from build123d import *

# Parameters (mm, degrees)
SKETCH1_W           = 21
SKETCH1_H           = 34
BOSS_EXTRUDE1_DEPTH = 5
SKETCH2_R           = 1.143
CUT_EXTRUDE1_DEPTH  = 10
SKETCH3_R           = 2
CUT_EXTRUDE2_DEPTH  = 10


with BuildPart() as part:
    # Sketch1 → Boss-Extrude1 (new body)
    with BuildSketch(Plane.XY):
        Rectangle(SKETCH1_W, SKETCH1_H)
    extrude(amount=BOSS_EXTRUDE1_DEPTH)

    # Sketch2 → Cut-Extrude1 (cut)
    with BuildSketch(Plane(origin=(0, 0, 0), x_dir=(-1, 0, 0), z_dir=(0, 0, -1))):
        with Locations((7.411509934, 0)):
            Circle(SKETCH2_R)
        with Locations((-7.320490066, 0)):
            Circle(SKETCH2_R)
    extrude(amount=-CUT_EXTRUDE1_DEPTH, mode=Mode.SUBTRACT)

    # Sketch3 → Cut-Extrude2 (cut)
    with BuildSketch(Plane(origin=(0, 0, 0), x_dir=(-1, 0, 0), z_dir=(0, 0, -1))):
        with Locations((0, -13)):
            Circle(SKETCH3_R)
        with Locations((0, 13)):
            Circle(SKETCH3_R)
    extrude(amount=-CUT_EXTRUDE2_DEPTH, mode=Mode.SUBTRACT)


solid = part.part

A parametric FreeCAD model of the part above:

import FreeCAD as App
import Part
import Sketcher

V = App.Vector
Q = App.Units.Quantity

doc = App.newDocument("Part")
params = doc.addObject("Spreadsheet::Sheet", "Params")
for row, (alias, value) in enumerate([
    ("sketch1_width", "21 mm"),
    ("sketch1_height", "34 mm"),
    ("pad1_length", "5 mm"),
    ("pocket1_length", "10 mm"),
    ("sketch3_diameter", "4 mm"),
    ("pocket2_length", "10 mm"),
], start=1):
    params.set(f"A{row}", alias)
    params.set(f"B{row}", "=" + value)
    params.setAlias(f"B{row}", alias)

body = doc.addObject("PartDesign::Body", "Body")

sketch1 = body.newObject("Sketcher::SketchObject", "Sketch")
sketch1.AttachmentSupport = (doc.getObject("XY_Plane"), [""])
sketch1.MapMode = "FlatFace"
sketch1.addGeometry([
    Part.LineSegment(V(-10, 17, 0), V(-10, -17, 0)),
    Part.LineSegment(V(-10, -17, 0), V(10, -17, 0)),
    Part.LineSegment(V(10, -17, 0), V(10, 17, 0)),
    Part.LineSegment(V(10, 17, 0), V(-10, 17, 0)),
], False)
sketch1.addConstraint([
    Sketcher.Constraint("Coincident", 0, 2, 1, 1),
    Sketcher.Constraint("Coincident", 1, 2, 2, 1),
    Sketcher.Constraint("Coincident", 2, 2, 3, 1),
    Sketcher.Constraint("Coincident", 3, 2, 0, 1),
    Sketcher.Constraint("Vertical", 0),
    Sketcher.Constraint("Horizontal", 1),
    Sketcher.Constraint("Vertical", 2),
    Sketcher.Constraint("Horizontal", 3),
    Sketcher.Constraint("Symmetric", 0, 2, 2, 2, -1, 1),
    Sketcher.Constraint("DistanceX", 1, 1, 1, 2, Q("21 mm")),
    Sketcher.Constraint("DistanceY", 0, 2, 0, 1, Q("34 mm")),
])
sketch1.setExpression("Constraints[9]", "Params.sketch1_width")
sketch1.setExpression("Constraints[10]", "Params.sketch1_height")
pad1 = body.newObject("PartDesign::Pad", "Pad")
pad1.Profile = sketch1
pad1.setExpression("Length", "Params.pad1_length")

sketch2 = body.newObject("Sketcher::SketchObject", "Sketch001")
sketch2.AttachmentSupport = (doc.getObject("XY_Plane"), [""])
sketch2.MapMode = "FlatFace"
sketch2.addGeometry([
    Part.Circle(V(-7.4, 0, 0), V(0, 0, 1), 1.1),
    Part.Circle(V(7.3, 0, 0), V(0, 0, 1), 1.1),
], False)
sketch2.addConstraint([
    Sketcher.Constraint("Equal", 0, 1),
    Sketcher.Constraint("PointOnObject", 0, 3, -1),
    Sketcher.Constraint("PointOnObject", 1, 3, -1),
    Sketcher.Constraint("Diameter", 0, Q("2.286 mm")),
    Sketcher.Constraint("DistanceX", 0, 3, 1, 3, Q("14.732 mm")),
    Sketcher.Constraint("DistanceX", 0, 3, -1, 1, Q("7.41151 mm")),
])
pocket1 = body.newObject("PartDesign::Pocket", "Pocket")
pocket1.Profile = sketch2
pocket1.setExpression("Length", "Params.pocket1_length")
pocket1.Reversed = True

sketch3 = body.newObject("Sketcher::SketchObject", "Sketch002")
sketch3.AttachmentSupport = (doc.getObject("XY_Plane"), [""])
sketch3.MapMode = "FlatFace"
sketch3.addGeometry([
    Part.Circle(V(0, -13, 0), V(0, 0, 1), 2),
    Part.Circle(V(0, 13, 0), V(0, 0, 1), 2),
], False)
sketch3.addConstraint([
    Sketcher.Constraint("Equal", 0, 1),
    Sketcher.Constraint("Symmetric", 0, 3, 1, 3, -1, 1),
    Sketcher.Constraint("PointOnObject", 0, 3, -2),
    Sketcher.Constraint("Diameter", 0, Q("4 mm")),
    Sketcher.Constraint("DistanceY", 0, 3, -1, 1, Q("13 mm")),
])
sketch3.setExpression("Constraints[3]", "Params.sketch3_diameter")
pocket2 = body.newObject("PartDesign::Pocket", "Pocket001")
pocket2.Profile = sketch3
pocket2.setExpression("Length", "Params.pocket2_length")
pocket2.Reversed = True

doc.recompute()
